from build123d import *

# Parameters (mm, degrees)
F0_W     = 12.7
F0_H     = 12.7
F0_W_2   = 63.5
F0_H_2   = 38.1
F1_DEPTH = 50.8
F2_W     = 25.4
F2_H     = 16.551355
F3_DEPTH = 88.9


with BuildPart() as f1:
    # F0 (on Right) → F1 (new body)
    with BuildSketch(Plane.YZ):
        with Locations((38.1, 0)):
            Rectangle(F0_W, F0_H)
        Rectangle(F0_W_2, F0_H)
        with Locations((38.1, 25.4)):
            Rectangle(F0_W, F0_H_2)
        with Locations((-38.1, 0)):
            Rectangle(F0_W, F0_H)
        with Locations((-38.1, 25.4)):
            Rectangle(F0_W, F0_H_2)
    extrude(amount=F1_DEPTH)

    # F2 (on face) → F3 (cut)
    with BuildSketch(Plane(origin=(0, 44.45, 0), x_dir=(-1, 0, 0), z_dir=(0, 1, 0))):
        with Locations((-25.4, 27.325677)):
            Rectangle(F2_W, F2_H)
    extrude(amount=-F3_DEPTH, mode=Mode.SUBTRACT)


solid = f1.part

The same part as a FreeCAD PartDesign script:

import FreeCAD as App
import Part
import Sketcher

V = App.Vector
Q = App.Units.Quantity


def add_polygon(sketch, points):
    """Adds a closed chain of lines whose ends are joined by coincident constraints."""
    first, n = sketch.GeometryCount, len(points)
    for a, b in zip(points, points[1:] + points[:1]):
        sketch.addGeometry(Part.LineSegment(App.Vector(*a, 0), App.Vector(*b, 0)), False)
    for i in range(n):
        sketch.addConstraint(Sketcher.Constraint("Coincident", first + i, 2, first + (i + 1) % n, 1))

doc = App.newDocument("Part")
params = doc.addObject("Spreadsheet::Sheet", "Params")
for row, (alias, value) in enumerate([
    ("sketch1_height", "2 in"),
    ("sketch1_width", "0.5 in"),
    ("sketch1_width2", "2.5 in"),
    ("sketch1_height2", "1.5 in"),
    ("pad1_length", "2 in"),
    ("sketch2_width", "1 in"),
    ("pocket1_length", "3.5 in"),
], start=1):
    params.set(f"A{row}", alias)
    params.set(f"B{row}", "=" + value)
    params.setAlias(f"B{row}", alias)

body = doc.addObject("PartDesign::Body", "Body")

sketch1 = body.newObject("Sketcher::SketchObject", "Sketch")
sketch1.AttachmentSupport = (doc.getObject("YZ_Plane"), [""])
sketch1.MapMode = "FlatFace"
add_polygon(sketch1, [(44.45, -6.35), (44.45, 44.45), (31.75, 44.45), (31.75, 6.35), (-31.75, 6.35), (-31.75, 44.45), (-44.45, 44.45), (-44.45, -6.35)])
sketch1.addConstraint([
    Sketcher.Constraint("Vertical", 0),
    Sketcher.Constraint("Horizontal", 1),
    Sketcher.Constraint("Vertical", 2),
    Sketcher.Constraint("Horizontal", 3),
    Sketcher.Constraint("Vertical", 4),
    Sketcher.Constraint("Horizontal", 5),
    Sketcher.Constraint("Vertical", 6),
    Sketcher.Constraint("Horizontal", 7),
    Sketcher.Constraint("Symmetric", 1, 2, 4, 2, -2),
    Sketcher.Constraint("Equal", 1, 5),
    Sketcher.Constraint("DistanceY", 0, 1, 0, 2, Q("2 in")),
    Sketcher.Constraint("DistanceX", 1, 2, 1, 1, Q("0.5 in")),
    Sketcher.Constraint("DistanceX", 3, 2, 3, 1, Q("2.5 in")),
    Sketcher.Constraint("DistanceY", 2, 2, 2, 1, Q("1.5 in")),
    Sketcher.Constraint("DistanceY", -1, 1, 0, 2, Q("1.75 in")),
])
sketch1.setExpression("Constraints[18]", "Params.sketch1_height")
sketch1.setExpression("Constraints[19]", "Params.sketch1_width")
sketch1.setExpression("Constraints[20]", "Params.sketch1_width2")
sketch1.setExpression("Constraints[21]", "Params.sketch1_height2")
pad1 = body.newObject("PartDesign::Pad", "Pad")
pad1.Profile = sketch1
pad1.setExpression("Length", "Params.pad1_length")

sketch2 = body.newObject("Sketcher::SketchObject", "Sketch001")
sketch2.AttachmentSupport = (doc.getObject("XZ_Plane"), [""])
sketch2.MapMode = "FlatFace"
sketch2.AttachmentOffset = App.Placement(V(0, 0, -1.75 * 25.4), App.Rotation())
add_polygon(sketch2, [(38.1, 35.601354), (38.1, 19.049999), (12.7, 19.049999), (12.7, 35.601354)])
sketch2.addConstraint([
    Sketcher.Constraint("Vertical", 0),
    Sketcher.Constraint("Horizontal", 1),
    Sketcher.Constraint("Vertical", 2),
    Sketcher.Constraint("Horizontal", 3),
    Sketcher.Constraint("DistanceX", 1, 2, 1, 1, Q("1 in")),
    Sketcher.Constraint("DistanceX", -1, 1, 0, 2, Q("1.5 in")),
    Sketcher.Constraint("DistanceY", -1, 1, 0, 2, Q("0.75 in")),
    Sketcher.Constraint("DistanceY", 0, 2, 0, 1, 16.551355),
])
sketch2.setExpression("Constraints[8]", "Params.sketch2_width")
pocket1 = body.newObject("PartDesign::Pocket", "Pocket")
pocket1.Profile = sketch2
pocket1.setExpression("Length", "Params.pocket1_length")
pocket1.Reversed = True

doc.recompute()
